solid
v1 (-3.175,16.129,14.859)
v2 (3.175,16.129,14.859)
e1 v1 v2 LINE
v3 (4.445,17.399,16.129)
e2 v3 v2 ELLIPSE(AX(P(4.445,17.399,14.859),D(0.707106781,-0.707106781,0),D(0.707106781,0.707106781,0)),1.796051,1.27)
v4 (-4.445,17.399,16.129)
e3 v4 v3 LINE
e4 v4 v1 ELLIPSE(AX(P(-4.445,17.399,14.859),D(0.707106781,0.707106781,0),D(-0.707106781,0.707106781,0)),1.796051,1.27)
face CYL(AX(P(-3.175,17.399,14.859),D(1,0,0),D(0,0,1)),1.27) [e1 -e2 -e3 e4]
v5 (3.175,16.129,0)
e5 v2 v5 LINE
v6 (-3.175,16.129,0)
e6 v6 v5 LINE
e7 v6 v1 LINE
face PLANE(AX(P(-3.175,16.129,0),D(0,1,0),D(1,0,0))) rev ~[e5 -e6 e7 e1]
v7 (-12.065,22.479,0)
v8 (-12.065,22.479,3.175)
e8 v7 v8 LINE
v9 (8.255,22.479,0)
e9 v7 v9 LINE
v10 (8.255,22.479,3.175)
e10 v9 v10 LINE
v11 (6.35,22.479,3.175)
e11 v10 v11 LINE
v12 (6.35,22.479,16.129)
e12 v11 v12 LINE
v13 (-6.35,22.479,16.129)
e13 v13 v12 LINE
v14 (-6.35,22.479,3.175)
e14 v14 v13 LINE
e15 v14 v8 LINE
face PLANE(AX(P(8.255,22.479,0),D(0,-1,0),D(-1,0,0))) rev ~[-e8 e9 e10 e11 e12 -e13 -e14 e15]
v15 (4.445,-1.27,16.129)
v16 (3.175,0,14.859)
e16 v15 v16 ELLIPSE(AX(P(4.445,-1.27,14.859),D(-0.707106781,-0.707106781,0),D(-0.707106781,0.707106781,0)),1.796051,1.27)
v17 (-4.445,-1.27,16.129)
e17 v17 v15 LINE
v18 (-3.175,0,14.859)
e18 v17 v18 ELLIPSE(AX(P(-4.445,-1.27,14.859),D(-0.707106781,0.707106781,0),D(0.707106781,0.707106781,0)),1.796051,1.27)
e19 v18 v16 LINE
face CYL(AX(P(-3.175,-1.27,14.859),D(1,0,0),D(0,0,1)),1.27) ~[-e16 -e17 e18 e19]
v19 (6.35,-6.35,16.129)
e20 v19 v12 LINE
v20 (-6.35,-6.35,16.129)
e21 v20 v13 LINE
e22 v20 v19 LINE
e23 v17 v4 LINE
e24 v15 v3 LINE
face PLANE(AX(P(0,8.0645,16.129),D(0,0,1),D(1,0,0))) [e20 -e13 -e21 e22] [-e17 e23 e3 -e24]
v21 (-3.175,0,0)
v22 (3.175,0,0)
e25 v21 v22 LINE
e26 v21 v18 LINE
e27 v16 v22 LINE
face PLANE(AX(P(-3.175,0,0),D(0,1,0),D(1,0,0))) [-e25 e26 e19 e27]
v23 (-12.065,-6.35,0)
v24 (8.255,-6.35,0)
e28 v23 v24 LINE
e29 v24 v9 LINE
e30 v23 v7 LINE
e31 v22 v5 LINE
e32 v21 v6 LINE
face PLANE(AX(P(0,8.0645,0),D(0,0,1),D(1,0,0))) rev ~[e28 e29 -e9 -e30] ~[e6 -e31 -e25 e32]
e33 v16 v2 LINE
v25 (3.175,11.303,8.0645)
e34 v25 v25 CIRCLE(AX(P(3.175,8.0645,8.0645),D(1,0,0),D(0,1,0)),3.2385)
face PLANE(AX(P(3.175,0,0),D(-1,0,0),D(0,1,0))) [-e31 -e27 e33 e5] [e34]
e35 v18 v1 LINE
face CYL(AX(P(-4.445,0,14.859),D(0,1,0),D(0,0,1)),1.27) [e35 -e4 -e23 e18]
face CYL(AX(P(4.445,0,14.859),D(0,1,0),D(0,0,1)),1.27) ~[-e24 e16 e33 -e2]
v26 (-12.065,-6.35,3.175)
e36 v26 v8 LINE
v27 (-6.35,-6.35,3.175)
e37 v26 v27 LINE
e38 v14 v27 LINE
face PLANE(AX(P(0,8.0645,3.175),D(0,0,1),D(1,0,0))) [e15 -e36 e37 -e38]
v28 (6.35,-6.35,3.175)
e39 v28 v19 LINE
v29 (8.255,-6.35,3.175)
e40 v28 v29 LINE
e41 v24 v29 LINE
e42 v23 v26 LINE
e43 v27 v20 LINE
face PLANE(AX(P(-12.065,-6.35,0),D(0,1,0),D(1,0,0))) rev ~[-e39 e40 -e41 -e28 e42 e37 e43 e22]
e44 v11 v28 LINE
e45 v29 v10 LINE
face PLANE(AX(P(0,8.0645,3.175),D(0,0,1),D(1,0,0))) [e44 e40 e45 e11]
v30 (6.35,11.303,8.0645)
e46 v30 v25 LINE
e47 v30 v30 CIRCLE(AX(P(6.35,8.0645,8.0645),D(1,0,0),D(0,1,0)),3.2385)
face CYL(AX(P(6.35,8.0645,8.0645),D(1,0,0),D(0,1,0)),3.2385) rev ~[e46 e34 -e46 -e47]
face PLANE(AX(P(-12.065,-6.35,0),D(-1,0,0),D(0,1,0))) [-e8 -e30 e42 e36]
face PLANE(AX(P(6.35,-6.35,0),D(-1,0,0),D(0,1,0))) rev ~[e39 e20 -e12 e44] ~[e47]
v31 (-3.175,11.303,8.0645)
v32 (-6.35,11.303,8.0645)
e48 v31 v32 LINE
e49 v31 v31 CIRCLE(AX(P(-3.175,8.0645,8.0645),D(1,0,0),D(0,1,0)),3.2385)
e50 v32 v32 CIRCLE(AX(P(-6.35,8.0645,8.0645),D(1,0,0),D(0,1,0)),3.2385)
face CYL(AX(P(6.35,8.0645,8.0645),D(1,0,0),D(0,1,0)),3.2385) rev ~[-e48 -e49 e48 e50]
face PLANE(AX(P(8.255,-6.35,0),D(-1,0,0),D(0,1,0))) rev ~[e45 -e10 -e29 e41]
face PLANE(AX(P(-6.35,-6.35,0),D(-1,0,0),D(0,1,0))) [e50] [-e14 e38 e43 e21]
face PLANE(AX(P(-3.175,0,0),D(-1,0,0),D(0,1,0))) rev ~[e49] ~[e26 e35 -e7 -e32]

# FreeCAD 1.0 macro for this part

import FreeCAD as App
import Part
import Sketcher

V = App.Vector
Q = App.Units.Quantity


def edges_at(feature, points):
    """Names of the edges that pass closest to the given points."""
    edges = feature.Shape.Edges
    near = lambda p: min(range(len(edges)), key=lambda i: edges[i].distToShape(Part.Vertex(*p))[0])
    return sorted({f"Edge{near(p) + 1}" for p in points})

doc = App.newDocument("Part")
params = doc.addObject("Spreadsheet::Sheet", "Params")
for row, (alias, value) in enumerate([
    ("sketch1_width", "0.8 in"),
    ("sketch1_width2", "0.25 in"),
    ("sketch1_height", "1.135 in"),
    ("sketch1_height2", "0.635 in"),
    ("pad1_length", "0.125 in"),
    ("sketch2_width", "0.5 in"),
    ("sketch2_width2", "0.25 in"),
    ("sketch2_height", "1.135 in"),
    ("sketch2_height2", "0.635 in"),
    ("pad2_length", "0.635 in"),
    ("sketch3_diameter", "0.255 in"),
    ("fillet_radius", "0.05 in"),
], start=1):
    params.set(f"A{row}", alias)
    params.set(f"B{row}", "=" + value)
    params.setAlias(f"B{row}", alias)

body = doc.addObject("PartDesign::Body", "Body")

sketch1 = body.newObject("Sketcher::SketchObject", "Sketch")
sketch1.AttachmentSupport = (doc.getObject("XY_Plane"), [""])
sketch1.MapMode = "FlatFace"
sketch1.addGeometry(Part.LineSegment(V(-12, 22, 0), V(-12, -6, 0)), False)
sketch1.addGeometry(Part.LineSegment(V(-12, -6, 0), V(8, -6, 0)), False)
sketch1.addGeometry(Part.LineSegment(V(8, -6, 0), V(8, 22, 0)), False)
sketch1.addGeometry(Part.LineSegment(V(8, 22, 0), V(-12, 22, 0)), False)
sketch1.addGeometry(Part.LineSegment(V(3, 0, 0), V(-3, 0, 0)), False)
sketch1.addGeometry(Part.LineSegment(V(-3, 0, 0), V(-3, 16, 0)), False)
sketch1.addGeometry(Part.LineSegment(V(-3, 16, 0), V(3, 16, 0)), False)
sketch1.addGeometry(Part.LineSegment(V(3, 16, 0), V(3, 0, 0)), False)
sketch1.addConstraint(Sketcher.Constraint("Coincident", 0, 2, 1, 1))
sketch1.addConstraint(Sketcher.Constraint("Coincident", 1, 2, 2, 1))
sketch1.addConstraint(Sketcher.Constraint("Coincident", 2, 2, 3, 1))
sketch1.addConstraint(Sketcher.Constraint("Coincident", 3, 2, 0, 1))
sketch1.addConstraint(Sketcher.Constraint("Coincident", 4, 2, 5, 1))
sketch1.addConstraint(Sketcher.Constraint("Coincident", 5, 2, 6, 1))
sketch1.addConstraint(Sketcher.Constraint("Coincident", 6, 2, 7, 1))
sketch1.addConstraint(Sketcher.Constraint("Coincident", 7, 2, 4, 1))
sketch1.addConstraint(Sketcher.Constraint("Vertical", 0))
sketch1.addConstraint(Sketcher.Constraint("Horizontal", 1))
sketch1.addConstraint(Sketcher.Constraint("Vertical", 2))
sketch1.addConstraint(Sketcher.Constraint("Horizontal", 3))
sketch1.addConstraint(Sketcher.Constraint("Horizontal", 4))
sketch1.addConstraint(Sketcher.Constraint("Vertical", 5))
sketch1.addConstraint(Sketcher.Constraint("Horizontal", 6))
sketch1.addConstraint(Sketcher.Constraint("Vertical", 7))
sketch1.addConstraint(Sketcher.Constraint("Symmetric", 4, 2, 7, 2, -1, 1))
sketch1.addConstraint(Sketcher.Constraint("DistanceX", 1, 1, 1, 2, Q("0.8 in")))
sketch1.addConstraint(Sketcher.Constraint("DistanceX", 4, 2, 4, 1, Q("0.25 in")))
sketch1.addConstraint(Sketcher.Constraint("DistanceX", 6, 2, 2, 2, Q("0.2 in")))
sketch1.addConstraint(Sketcher.Constraint("DistanceY", 0, 2, 0, 1, Q("1.135 in")))
sketch1.addConstraint(Sketcher.Constraint("DistanceY", 5, 1, 5, 2, Q("0.635 in")))
sketch1.addConstraint(Sketcher.Constraint("DistanceY", 0, 2, -1, 1, Q("0.25 in")))
sketch1.setExpression("Constraints[17]", "Params.sketch1_width")
sketch1.setExpression("Constraints[18]", "Params.sketch1_width2")
sketch1.setExpression("Constraints[20]", "Params.sketch1_height")
sketch1.setExpression("Constraints[21]", "Params.sketch1_height2")
pad1 = body.newObject("PartDesign::Pad", "Pad")
pad1.Profile = sketch1
pad1.setExpression("Length", "Params.pad1_length")

sketch2 = body.newObject("Sketcher::SketchObject", "Sketch001")
sketch2.AttachmentSupport = (doc.getObject("XY_Plane"), [""])
sketch2.MapMode = "FlatFace"
sketch2.addGeometry(Part.LineSegment(V(-6, 22, 0), V(-6, -6, 0)), False)
sketch2.addGeometry(Part.LineSegment(V(-6, -6, 0), V(6, -6, 0)), False)
sketch2.addGeometry(Part.LineSegment(V(6, -6, 0), V(6, 22, 0)), False)
sketch2.addGeometry(Part.LineSegment(V(6, 22, 0), V(-6, 22, 0)), False)
sketch2.addGeometry(Part.LineSegment(V(3, 0, 0), V(-3, 0, 0)), False)
sketch2.addGeometry(Part.LineSegment(V(-3, 0, 0), V(-3, 16, 0)), False)
sketch2.addGeometry(Part.LineSegment(V(-3, 16, 0), V(3, 16, 0)), False)
sketch2.addGeometry(Part.LineSegment(V(3, 16, 0), V(3, 0, 0)), False)
sketch2.addConstraint(Sketcher.Constraint("Coincident", 0, 2, 1, 1))
sketch2.addConstraint(Sketcher.Constraint("Coincident", 1, 2, 2, 1))
sketch2.addConstraint(Sketcher.Constraint("Coincident", 2, 2, 3, 1))
sketch2.addConstraint(Sketcher.Constraint("Coincident", 3, 2, 0, 1))
sketch2.addConstraint(Sketcher.Constraint("Coincident", 4, 2, 5, 1))
sketch2.addConstraint(Sketcher.Constraint("Coincident", 5, 2, 6, 1))
sketch2.addConstraint(Sketcher.Constraint("Coincident", 6, 2, 7, 1))
sketch2.addConstraint(Sketcher.Constraint("Coincident", 7, 2, 4, 1))
sketch2.addConstraint(Sketcher.Constraint("Vertical", 0))
sketch2.addConstraint(Sketcher.Constraint("Horizontal", 1))
sketch2.addConstraint(Sketcher.Constraint("Vertical", 2))
sketch2.addConstraint(Sketcher.Constraint("Horizontal", 3))
sketch2.addConstraint(Sketcher.Constraint("Horizontal", 4))
sketch2.addConstraint(Sketcher.Constraint("Vertical", 5))
sketch2.addConstraint(Sketcher.Constraint("Horizontal", 6))
sketch2.addConstraint(Sketcher.Constraint("Vertical", 7))
sketch2.addConstraint(Sketcher.Constraint("Symmetric", 4, 2, 7, 2, -1, 1))
sketch2.addConstraint(Sketcher.Constraint("DistanceX", 1, 1, 1, 2, Q("0.5 in")))
sketch2.addConstraint(Sketcher.Constraint("DistanceX", 4, 2, 4, 1, Q("0.25 in")))
sketch2.addConstraint(Sketcher.Constraint("DistanceY", 0, 2, 0, 1, Q("1.135 in")))
sketch2.addConstraint(Sketcher.Constraint("DistanceY", 5, 1, 5, 2, Q("0.635 in")))
sketch2.addConstraint(Sketcher.Constraint("DistanceX", 0, 2, -1, 1, Q("0.25 in")))
sketch2.addConstraint(Sketcher.Constraint("DistanceY", 0, 2, -1, 1, Q("0.25 in")))
sketch2.setExpression("Constraints[17]", "Params.sketch2_width")
sketch2.setExpression("Constraints[18]", "Params.sketch2_width2")
sketch2.setExpression("Constraints[19]", "Params.sketch2_height")
sketch2.setExpression("Constraints[20]", "Params.sketch2_height2")
pad2 = body.newObject("PartDesign::Pad", "Pad001")
pad2.Profile = sketch2
pad2.setExpression("Length", "Params.pad2_length")

sketch3 = body.newObject("Sketcher::SketchObject", "Sketch002")
sketch3.AttachmentSupport = (doc.getObject("YZ_Plane"), [""])
sketch3.MapMode = "FlatFace"
sketch3.AttachmentOffset = App.Placement(V(0, 0, 0.25 * 25.4), App.Rotation())
sketch3.addGeometry(Part.Circle(V(8.1, 8.1, 0), V(0, 0, 1), 3.2), False)
sketch3.addConstraint(Sketcher.Constraint("Diameter", 0, Q("0.255 in")))
sketch3.addConstraint(Sketcher.Constraint("DistanceX", -1, 1, 0, 3, Q("0.3175 in")))
sketch3.addConstraint(Sketcher.Constraint("DistanceY", -1, 1, 0, 3, Q("0.3175 in")))
sketch3.setExpression("Constraints[0]", "Params.sketch3_diameter")
pocket1 = body.newObject("PartDesign::Pocket", "Pocket")
pocket1.Profile = sketch3
pocket1.Type = "ThroughAll"
doc.recompute()

fillet = body.newObject("PartDesign::Fillet", "Fillet")
fillet.Base = (pocket1, edges_at(pocket1, [
    (3.175, 8.065, 16.129),
    (-3.175, 8.065, 16.129),
    (0, 0, 16.129),
    (0, 16.129, 16.129),
]))
fillet.setExpression("Radius", "Params.fillet_radius")

doc.recompute()
